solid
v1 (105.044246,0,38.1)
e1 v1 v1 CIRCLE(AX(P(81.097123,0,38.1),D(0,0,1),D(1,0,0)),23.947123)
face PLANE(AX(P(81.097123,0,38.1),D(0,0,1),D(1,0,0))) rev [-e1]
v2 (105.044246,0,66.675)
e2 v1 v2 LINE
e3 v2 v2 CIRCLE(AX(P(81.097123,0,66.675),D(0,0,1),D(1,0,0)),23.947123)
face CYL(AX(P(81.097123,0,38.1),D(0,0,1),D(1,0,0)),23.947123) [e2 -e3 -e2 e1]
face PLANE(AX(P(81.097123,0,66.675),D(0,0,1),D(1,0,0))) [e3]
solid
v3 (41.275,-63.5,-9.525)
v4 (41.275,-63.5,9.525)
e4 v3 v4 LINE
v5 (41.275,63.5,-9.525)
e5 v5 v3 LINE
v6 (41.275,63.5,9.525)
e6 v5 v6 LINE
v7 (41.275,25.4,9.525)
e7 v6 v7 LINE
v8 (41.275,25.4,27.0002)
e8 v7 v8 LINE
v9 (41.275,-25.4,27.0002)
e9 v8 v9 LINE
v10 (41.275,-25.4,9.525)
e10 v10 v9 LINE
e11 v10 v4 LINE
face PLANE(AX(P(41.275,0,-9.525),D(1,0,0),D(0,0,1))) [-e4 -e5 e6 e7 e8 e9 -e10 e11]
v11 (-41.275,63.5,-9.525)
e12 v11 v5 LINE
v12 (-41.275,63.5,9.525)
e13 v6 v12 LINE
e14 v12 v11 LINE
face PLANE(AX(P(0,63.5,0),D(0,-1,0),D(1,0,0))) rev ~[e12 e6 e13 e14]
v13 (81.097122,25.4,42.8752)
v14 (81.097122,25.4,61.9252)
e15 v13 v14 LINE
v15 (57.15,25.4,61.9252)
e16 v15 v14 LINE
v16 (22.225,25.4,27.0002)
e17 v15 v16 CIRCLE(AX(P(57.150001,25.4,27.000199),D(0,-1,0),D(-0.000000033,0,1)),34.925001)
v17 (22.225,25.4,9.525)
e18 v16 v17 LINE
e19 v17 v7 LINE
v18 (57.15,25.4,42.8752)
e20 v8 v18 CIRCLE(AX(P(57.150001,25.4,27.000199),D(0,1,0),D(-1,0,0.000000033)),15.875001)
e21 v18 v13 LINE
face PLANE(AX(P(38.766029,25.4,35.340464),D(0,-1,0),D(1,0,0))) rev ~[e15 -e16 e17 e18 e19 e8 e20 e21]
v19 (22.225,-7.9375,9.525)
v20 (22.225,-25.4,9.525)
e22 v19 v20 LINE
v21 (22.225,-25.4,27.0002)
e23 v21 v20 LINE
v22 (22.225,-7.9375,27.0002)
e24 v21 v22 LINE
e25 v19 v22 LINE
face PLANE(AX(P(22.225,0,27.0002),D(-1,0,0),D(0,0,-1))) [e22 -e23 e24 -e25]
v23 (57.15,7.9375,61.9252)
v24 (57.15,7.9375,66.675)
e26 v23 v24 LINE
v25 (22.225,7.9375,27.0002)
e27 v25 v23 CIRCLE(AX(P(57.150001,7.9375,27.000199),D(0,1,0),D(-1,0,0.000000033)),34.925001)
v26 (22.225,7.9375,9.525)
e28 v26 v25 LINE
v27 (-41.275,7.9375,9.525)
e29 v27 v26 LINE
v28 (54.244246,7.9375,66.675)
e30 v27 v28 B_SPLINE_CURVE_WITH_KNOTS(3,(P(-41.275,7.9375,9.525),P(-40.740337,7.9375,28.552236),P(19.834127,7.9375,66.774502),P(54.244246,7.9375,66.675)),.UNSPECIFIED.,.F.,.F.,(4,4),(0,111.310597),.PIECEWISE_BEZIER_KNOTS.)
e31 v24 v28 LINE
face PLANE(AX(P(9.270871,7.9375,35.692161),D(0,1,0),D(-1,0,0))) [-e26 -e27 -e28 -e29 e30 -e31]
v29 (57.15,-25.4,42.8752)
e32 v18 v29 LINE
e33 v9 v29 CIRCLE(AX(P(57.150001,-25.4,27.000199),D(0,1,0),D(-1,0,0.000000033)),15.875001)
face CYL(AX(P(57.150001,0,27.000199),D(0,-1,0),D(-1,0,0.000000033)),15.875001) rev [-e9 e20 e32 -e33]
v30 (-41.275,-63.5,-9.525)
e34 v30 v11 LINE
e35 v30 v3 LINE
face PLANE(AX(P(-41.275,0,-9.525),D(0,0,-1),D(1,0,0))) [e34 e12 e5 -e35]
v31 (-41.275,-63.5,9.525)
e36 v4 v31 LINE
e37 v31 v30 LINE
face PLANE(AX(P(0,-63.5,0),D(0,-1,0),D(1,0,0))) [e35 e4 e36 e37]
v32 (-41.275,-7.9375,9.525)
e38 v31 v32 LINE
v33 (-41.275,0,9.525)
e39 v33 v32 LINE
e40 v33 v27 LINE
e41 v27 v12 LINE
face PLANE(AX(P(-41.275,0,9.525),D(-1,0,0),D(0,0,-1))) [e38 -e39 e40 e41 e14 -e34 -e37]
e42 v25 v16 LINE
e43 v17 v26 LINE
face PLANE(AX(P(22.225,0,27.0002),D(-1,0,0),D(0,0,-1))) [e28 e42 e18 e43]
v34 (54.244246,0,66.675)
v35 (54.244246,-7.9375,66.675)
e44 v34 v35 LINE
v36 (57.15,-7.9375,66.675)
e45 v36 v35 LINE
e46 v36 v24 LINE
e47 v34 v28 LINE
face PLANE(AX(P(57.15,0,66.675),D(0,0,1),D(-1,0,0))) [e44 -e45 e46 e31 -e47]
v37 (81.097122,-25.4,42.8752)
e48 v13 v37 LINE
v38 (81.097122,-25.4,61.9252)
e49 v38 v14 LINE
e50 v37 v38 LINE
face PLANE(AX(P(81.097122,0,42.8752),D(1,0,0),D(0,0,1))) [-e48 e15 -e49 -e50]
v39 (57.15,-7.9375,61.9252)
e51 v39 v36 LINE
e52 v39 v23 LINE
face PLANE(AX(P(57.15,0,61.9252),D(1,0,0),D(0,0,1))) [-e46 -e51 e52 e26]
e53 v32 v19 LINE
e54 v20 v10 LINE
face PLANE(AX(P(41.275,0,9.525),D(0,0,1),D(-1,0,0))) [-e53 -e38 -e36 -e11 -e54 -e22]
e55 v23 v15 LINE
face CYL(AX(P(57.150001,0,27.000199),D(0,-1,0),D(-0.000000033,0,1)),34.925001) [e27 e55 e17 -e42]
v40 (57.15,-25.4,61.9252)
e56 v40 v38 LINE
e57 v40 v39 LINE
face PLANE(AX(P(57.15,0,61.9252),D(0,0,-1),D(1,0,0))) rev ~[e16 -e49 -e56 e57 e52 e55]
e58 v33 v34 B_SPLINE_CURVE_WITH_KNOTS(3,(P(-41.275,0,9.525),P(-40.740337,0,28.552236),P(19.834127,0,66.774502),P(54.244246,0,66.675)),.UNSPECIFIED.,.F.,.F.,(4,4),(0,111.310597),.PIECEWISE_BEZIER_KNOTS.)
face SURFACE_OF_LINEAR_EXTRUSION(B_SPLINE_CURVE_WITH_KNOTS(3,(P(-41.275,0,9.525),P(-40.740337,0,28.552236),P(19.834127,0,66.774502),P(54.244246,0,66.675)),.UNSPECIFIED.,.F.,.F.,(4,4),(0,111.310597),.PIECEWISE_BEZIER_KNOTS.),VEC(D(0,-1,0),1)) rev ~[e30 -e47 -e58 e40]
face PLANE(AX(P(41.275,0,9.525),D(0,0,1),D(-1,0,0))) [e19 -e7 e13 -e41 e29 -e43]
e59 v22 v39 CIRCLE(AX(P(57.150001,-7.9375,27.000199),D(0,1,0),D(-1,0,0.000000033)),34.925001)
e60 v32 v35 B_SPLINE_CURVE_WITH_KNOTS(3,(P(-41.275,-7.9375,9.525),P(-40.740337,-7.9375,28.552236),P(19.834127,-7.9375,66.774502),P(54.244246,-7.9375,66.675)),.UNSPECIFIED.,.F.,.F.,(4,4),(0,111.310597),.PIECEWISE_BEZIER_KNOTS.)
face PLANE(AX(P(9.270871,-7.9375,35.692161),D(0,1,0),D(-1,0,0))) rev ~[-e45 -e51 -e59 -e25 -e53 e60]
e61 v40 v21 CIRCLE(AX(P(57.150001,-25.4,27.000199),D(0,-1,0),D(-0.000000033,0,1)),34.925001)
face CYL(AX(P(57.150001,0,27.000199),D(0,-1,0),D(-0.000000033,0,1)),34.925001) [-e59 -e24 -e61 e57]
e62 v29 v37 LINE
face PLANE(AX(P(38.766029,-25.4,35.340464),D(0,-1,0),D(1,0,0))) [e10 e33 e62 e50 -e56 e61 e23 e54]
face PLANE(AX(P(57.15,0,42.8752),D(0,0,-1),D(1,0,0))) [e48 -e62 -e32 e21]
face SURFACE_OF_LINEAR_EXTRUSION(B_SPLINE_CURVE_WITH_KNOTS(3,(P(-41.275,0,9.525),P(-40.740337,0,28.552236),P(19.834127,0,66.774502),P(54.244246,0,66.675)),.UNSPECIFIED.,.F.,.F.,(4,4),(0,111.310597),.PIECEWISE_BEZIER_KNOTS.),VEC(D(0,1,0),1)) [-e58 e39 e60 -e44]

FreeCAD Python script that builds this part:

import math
import FreeCAD as App
import Part
import Sketcher
from FreeCAD import Vector
Q = App.Units.Quantity

doc = App.newDocument("Part")
body = doc.addObject("PartDesign::Body", "Body")

sketch1 = body.newObject("Sketcher::SketchObject", "Sketch")
sketch1.AttachmentSupport = (doc.getObject("XZ_Plane"), [""])
sketch1.MapMode = "FlatFace"
sketch1.addGeometry([
    Part.LineSegment(Vector(-41, -10, 0), Vector(41, -10, 0)),
    Part.LineSegment(Vector(41, -10, 0), Vector(41, 10, 0)),
    Part.LineSegment(Vector(41, 10, 0), Vector(-41, 10, 0)),
    Part.LineSegment(Vector(-41, 10, 0), Vector(-41, -10, 0)),
], False)
sketch1.addConstraint([
    Sketcher.Constraint("Coincident", 0, 2, 1, 1),
    Sketcher.Constraint("Coincident", 1, 2, 2, 1),
    Sketcher.Constraint("Coincident", 2, 2, 3, 1),
    Sketcher.Constraint("Coincident", 3, 2, 0, 1),
    Sketcher.Constraint("Horizontal", 0),
    Sketcher.Constraint("Vertical", 1),
    Sketcher.Constraint("Horizontal", 2),
    Sketcher.Constraint("Vertical", 3),
    Sketcher.Constraint("Symmetric", 0, 2, 2, 2, -1, 1),
    Sketcher.Constraint("DistanceX", 0, 1, 0, 2, Q("3.25 in")),
    Sketcher.Constraint("DistanceY", 1, 1, 1, 2, Q("0.75 in")),
])
pad1 = body.newObject("PartDesign::Pad", "Pad")
pad1.Profile = sketch1
pad1.Length = Q("5 in")
pad1.Midplane = True

sketch2 = body.newObject("Sketcher::SketchObject", "Sketch001")
sketch2.AttachmentSupport = (doc.getObject("XZ_Plane"), [""])
sketch2.MapMode = "FlatFace"
sketch2.addGeometry([
    Part.LineSegment(Vector(22, 27, 0), Vector(22, 10, 0)),
    Part.LineSegment(Vector(22, 10, 0), Vector(41, 10, 0)),
    Part.LineSegment(Vector(41, 10, 0), Vector(41, 27, 0)),
    Part.ArcOfCircle(Part.Circle(Vector(57, 27, 0), Vector(0, 0, 1), 16), math.radians(90), math.radians(180)),
    Part.LineSegment(Vector(57, 43, 0), Vector(81, 43, 0)),
    Part.LineSegment(Vector(81, 43, 0), Vector(81, 62, 0)),
    Part.LineSegment(Vector(81, 62, 0), Vector(57, 62, 0)),
    Part.ArcOfCircle(Part.Circle(Vector(57, 27, 0), Vector(0, 0, 1), 35), math.radians(90), math.radians(180)),
], False)
sketch2.addConstraint([
    Sketcher.Constraint("Coincident", 0, 2, 1, 1),
    Sketcher.Constraint("Coincident", 1, 2, 2, 1),
    Sketcher.Constraint("Tangent", 2, 2, 3, 2),
    Sketcher.Constraint("Tangent", 3, 1, 4, 1),
    Sketcher.Constraint("Coincident", 4, 2, 5, 1),
    Sketcher.Constraint("Coincident", 5, 2, 6, 1),
    Sketcher.Constraint("Tangent", 6, 2, 7, 1),
    Sketcher.Constraint("Tangent", 7, 2, 0, 1),
    Sketcher.Constraint("Vertical", 0),
    Sketcher.Constraint("Horizontal", 1),
    Sketcher.Constraint("Vertical", 2),
    Sketcher.Constraint("Horizontal", 4),
    Sketcher.Constraint("Vertical", 5),
    Sketcher.Constraint("Horizontal", 6),
    Sketcher.Constraint("Coincident", 7, 3, 3, 3),
    Sketcher.Constraint("Radius", 3, Q("0.625 in")),
    Sketcher.Constraint("Radius", 7, Q("1.375 in")),
    Sketcher.Constraint("DistanceY", 0, 2, 0, 1, Q("0.688 in")),
    Sketcher.Constraint("DistanceX", -1, 1, 3, 3, Q("2.25 in")),
    Sketcher.Constraint("DistanceX", 4, 1, 4, 2, Q("0.9428001 in")),
    Sketcher.Constraint("DistanceY", -1, 1, 3, 3, Q("1.063 in")),
])
pad2 = body.newObject("PartDesign::Pad", "Pad001")
pad2.Profile = sketch2
pad2.Length = Q("2 in")
pad2.Midplane = True

sketch3 = body.newObject("Sketcher::SketchObject", "Sketch002")
sketch3.AttachmentSupport = (doc.getObject("XZ_Plane"), [""])
sketch3.MapMode = "FlatFace"
sketch3.addGeometry([
    Part.BSplineCurve([Vector(-41.275, 9.525, 0), Vector(-40.740337, 28.552236, 0), Vector(19.834127, 66.774502, 0), Vector(54.244246, 66.675, 0)], [4, 4], [0, 111.310597], False, 3, [1, 1, 1, 1], False),
    Part.LineSegment(Vector(-41.275, 9.525, 0), Vector(22.225, 9.525, 0)),
    Part.LineSegment(Vector(22.225, 9.525, 0), Vector(22.225, 27.0002, 0)),
    Part.ArcOfCircle(Part.Circle(Vector(57.150001, 27.000199, 0), Vector(0, 0, 1), 34.925001), math.radians(90.000002), math.radians(179.999998)),
    Part.LineSegment(Vector(57.15, 61.9252, 0), Vector(57.15, 66.675, 0)),
    Part.LineSegment(Vector(57.15, 66.675, 0), Vector(54.244246, 66.675, 0)),
], False)
sketch3.addConstraint([
    Sketcher.Constraint("Block", 0),
    Sketcher.Constraint("Coincident", 0, 1, 1, 1),
    Sketcher.Constraint("Coincident", 1, 2, 2, 1),
    Sketcher.Constraint("Tangent", 2, 2, 3, 2),
    Sketcher.Constraint("Coincident", 3, 1, 4, 1),
    Sketcher.Constraint("Coincident", 4, 2, 5, 1),
    Sketcher.Constraint("Coincident", 5, 2, 0, 2),
    Sketcher.Constraint("Horizontal", 1),
    Sketcher.Constraint("Vertical", 2),
    Sketcher.Constraint("Vertical", 4),
    Sketcher.Constraint("Horizontal", 5),
    Sketcher.Constraint("DistanceX", 1, 1, 1, 2, Q("2.5 in")),
    Sketcher.Constraint("Radius", 3, Q("1.375 in")),
    Sketcher.Constraint("DistanceY", 2, 1, 2, 2, Q("0.688 in")),
    Sketcher.Constraint("DistanceX", -1, 1, 3, 1, Q("2.25 in")),
])
pad3 = body.newObject("PartDesign::Pad", "Pad002")
pad3.Profile = sketch3
pad3.Length = Q("0.625 in")
pad3.Midplane = True
body2 = doc.addObject("PartDesign::Body", "Body001")

sketch4 = body2.newObject("Sketcher::SketchObject", "Sketch003")
sketch4.AttachmentSupport = (doc.getObject("XZ_Plane001"), [""])
sketch4.MapMode = "FlatFace"
sketch4.addGeometry([
    Part.LineSegment(Vector(81, 38, 0), Vector(105, 38, 0)),
    Part.LineSegment(Vector(105, 38, 0), Vector(105, 67, 0)),
    Part.LineSegment(Vector(105, 67, 0), Vector(81, 67, 0)),
    Part.LineSegment(Vector(81, 67, 0), Vector(81, 38, 0)),
], False)
sketch4.addGeometry(Part.LineSegment(Vector(81, 38, 0), Vector(81, 67, 0)), True)
sketch4.addConstraint([
    Sketcher.Constraint("Coincident", 0, 2, 1, 1),
    Sketcher.Constraint("Coincident", 1, 2, 2, 1),
    Sketcher.Constraint("Coincident", 2, 2, 3, 1),
    Sketcher.Constraint("Coincident", 3, 2, 0, 1),
    Sketcher.Constraint("Horizontal", 0),
    Sketcher.Constraint("Vertical", 1),
    Sketcher.Constraint("Horizontal", 2),
    Sketcher.Constraint("Vertical", 3),
    Sketcher.Constraint("Vertical", 4),
    Sketcher.Constraint("Coincident", 4, 1, 3, 2),
    Sketcher.Constraint("Horizontal", 1, 2, 4, 2),
    Sketcher.Constraint("DistanceY", -1, 1, 0, 2, Q("1.5 in")),
    Sketcher.Constraint("DistanceY", 1, 1, 1, 2, Q("1.125 in")),
    Sketcher.Constraint("DistanceX", 0, 1, 0, 2, Q("0.9428001 in")),
    Sketcher.Constraint("DistanceX", -1, 1, 2, 2, Q("3.1928001 in")),
])
revolution = body2.newObject("PartDesign::Revolution", "Revolution")
revolution.Profile = sketch4
revolution.ReferenceAxis = (sketch4, ["Axis0"])
revolution.Angle = 360

doc.recompute()
